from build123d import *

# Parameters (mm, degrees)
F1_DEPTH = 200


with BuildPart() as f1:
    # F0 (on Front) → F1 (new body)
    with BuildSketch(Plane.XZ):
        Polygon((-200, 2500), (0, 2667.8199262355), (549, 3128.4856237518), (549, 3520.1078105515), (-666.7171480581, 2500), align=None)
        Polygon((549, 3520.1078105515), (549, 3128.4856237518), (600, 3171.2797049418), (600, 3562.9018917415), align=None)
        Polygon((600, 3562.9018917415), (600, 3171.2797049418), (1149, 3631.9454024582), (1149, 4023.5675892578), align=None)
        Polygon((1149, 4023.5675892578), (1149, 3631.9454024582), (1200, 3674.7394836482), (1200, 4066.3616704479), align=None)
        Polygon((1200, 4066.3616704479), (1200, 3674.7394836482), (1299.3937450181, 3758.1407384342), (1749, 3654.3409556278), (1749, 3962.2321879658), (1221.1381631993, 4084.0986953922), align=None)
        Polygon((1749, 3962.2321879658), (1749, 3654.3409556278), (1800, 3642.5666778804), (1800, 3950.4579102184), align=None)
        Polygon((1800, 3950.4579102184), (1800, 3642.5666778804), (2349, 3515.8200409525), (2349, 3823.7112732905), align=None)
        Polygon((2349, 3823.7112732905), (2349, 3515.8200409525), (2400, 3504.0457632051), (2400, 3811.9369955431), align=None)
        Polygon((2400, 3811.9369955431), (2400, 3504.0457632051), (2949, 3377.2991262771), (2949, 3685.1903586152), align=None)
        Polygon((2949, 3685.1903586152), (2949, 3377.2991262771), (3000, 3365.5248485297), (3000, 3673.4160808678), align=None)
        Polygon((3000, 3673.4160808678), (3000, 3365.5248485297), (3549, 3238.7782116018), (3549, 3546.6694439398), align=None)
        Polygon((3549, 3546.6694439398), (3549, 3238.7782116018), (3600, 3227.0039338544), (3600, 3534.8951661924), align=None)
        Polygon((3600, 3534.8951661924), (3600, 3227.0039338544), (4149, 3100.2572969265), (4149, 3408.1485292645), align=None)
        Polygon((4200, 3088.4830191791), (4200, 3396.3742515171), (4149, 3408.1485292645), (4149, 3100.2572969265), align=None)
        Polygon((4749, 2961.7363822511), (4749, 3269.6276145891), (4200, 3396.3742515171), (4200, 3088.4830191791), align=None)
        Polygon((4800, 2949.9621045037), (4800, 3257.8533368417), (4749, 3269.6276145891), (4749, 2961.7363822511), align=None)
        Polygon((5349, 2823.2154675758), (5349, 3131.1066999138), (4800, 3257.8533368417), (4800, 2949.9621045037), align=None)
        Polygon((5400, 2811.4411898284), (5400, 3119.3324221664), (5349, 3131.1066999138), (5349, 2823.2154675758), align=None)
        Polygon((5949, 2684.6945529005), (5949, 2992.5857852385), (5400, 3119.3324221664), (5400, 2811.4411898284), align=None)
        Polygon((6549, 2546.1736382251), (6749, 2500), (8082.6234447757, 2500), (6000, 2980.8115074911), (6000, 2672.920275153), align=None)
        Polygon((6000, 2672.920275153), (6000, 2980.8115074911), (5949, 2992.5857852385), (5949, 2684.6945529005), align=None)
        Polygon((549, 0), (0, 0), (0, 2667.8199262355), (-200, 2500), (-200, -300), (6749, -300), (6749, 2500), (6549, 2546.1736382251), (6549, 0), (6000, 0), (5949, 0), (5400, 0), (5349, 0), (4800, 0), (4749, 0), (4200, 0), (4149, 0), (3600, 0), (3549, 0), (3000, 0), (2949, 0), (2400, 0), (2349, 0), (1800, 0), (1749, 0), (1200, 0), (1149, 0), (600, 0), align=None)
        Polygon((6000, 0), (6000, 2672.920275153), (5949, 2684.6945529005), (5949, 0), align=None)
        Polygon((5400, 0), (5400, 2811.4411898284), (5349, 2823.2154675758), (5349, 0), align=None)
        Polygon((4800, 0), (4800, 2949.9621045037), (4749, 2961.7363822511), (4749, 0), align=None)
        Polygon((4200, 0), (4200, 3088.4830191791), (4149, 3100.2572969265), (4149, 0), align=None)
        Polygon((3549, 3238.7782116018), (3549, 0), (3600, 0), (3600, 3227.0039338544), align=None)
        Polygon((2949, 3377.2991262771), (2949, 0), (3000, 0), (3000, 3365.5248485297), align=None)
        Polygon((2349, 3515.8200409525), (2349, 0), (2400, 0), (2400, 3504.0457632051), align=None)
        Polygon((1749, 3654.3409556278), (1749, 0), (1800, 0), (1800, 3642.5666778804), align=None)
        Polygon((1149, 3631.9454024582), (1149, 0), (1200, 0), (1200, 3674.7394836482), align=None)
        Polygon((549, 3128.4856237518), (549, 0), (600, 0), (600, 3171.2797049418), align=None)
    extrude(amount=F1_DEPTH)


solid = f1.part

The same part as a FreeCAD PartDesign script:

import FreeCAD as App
import Part
import Sketcher
Q = App.Units.Quantity

doc = App.newDocument("Part")
params = doc.addObject("Spreadsheet::Sheet", "Params")
for row, (alias, value) in enumerate([
    ("sketch1_width", "6949 mm"),
    ("sketch1_width2", "549 mm"),
    ("sketch1_height", "2800 mm"),
    ("pad1_length", "200 mm"),
], start=1):
    params.set(f"A{row}", alias)
    params.set(f"B{row}", "=" + value)
    params.setAlias(f"B{row}", alias)

body = doc.addObject("PartDesign::Body", "Body")

sketch1 = body.newObject("Sketcher::SketchObject", "Sketch")
sketch1.AttachmentSupport = (doc.getObject("XZ_Plane"), [""])
sketch1.MapMode = "FlatFace"
sketch1.addGeometry(Part.LineSegment(App.Vector(6749, 2500, 0), App.Vector(8083, 2500, 0)), False)
sketch1.addGeometry(Part.LineSegment(App.Vector(8083, 2500, 0), App.Vector(1221, 4084, 0)), False)
sketch1.addGeometry(Part.LineSegment(App.Vector(1221, 4084, 0), App.Vector(-667, 2500, 0)), False)
sketch1.addGeometry(Part.LineSegment(App.Vector(-667, 2500, 0), App.Vector(-200, 2500, 0)), False)
sketch1.addGeometry(Part.LineSegment(App.Vector(-200, 2500, 0), App.Vector(-200, -300, 0)), False)
sketch1.addGeometry(Part.LineSegment(App.Vector(-200, -300, 0), App.Vector(6749, -300, 0)), False)
sketch1.addGeometry(Part.LineSegment(App.Vector(6749, -300, 0), App.Vector(6749, 2500, 0)), False)
sketch1.addGeometry(Part.LineSegment(App.Vector(0, 2668, 0), App.Vector(549, 3128, 0)), False)
sketch1.addGeometry(Part.LineSegment(App.Vector(549, 3128, 0), App.Vector(549, 0, 0)), False)
sketch1.addGeometry(Part.LineSegment(App.Vector(549, 0, 0), App.Vector(0, 0, 0)), False)
sketch1.addGeometry(Part.LineSegment(App.Vector(0, 0, 0), App.Vector(0, 2668, 0)), False)
sketch1.addGeometry(Part.LineSegment(App.Vector(600, 3171, 0), App.Vector(1149, 3632, 0)), False)
sketch1.addGeometry(Part.LineSegment(App.Vector(1149, 3632, 0), App.Vector(1149, 0, 0)), False)
sketch1.addGeometry(Part.LineSegment(App.Vector(1149, 0, 0), App.Vector(600, 0, 0)), False)
sketch1.addGeometry(Part.LineSegment(App.Vector(600, 0, 0), App.Vector(600, 3171, 0)), False)
sketch1.addGeometry(Part.LineSegment(App.Vector(1200, 3675, 0), App.Vector(1299, 3758, 0)), False)
sketch1.addGeometry(Part.LineSegment(App.Vector(1299, 3758, 0), App.Vector(1749, 3654, 0)), False)
sketch1.addGeometry(Part.LineSegment(App.Vector(1749, 3654, 0), App.Vector(1749, 0, 0)), False)
sketch1.addGeometry(Part.LineSegment(App.Vector(1749, 0, 0), App.Vector(1200, 0, 0)), False)
sketch1.addGeometry(Part.LineSegment(App.Vector(1200, 0, 0), App.Vector(1200, 3675, 0)), False)
sketch1.addGeometry(Part.LineSegment(App.Vector(1800, 3643, 0), App.Vector(2349, 3516, 0)), False)
sketch1.addGeometry(Part.LineSegment(App.Vector(2349, 3516, 0), App.Vector(2349, 0, 0)), False)
sketch1.addGeometry(Part.LineSegment(App.Vector(2349, 0, 0), App.Vector(1800, 0, 0)), False)
sketch1.addGeometry(Part.LineSegment(App.Vector(1800, 0, 0), App.Vector(1800, 3643, 0)), False)
sketch1.addGeometry(Part.LineSegment(App.Vector(2400, 3504, 0), App.Vector(2949, 3377, 0)), False)
sketch1.addGeometry(Part.LineSegment(App.Vector(2949, 3377, 0), App.Vector(2949, 0, 0)), False)
sketch1.addGeometry(Part.LineSegment(App.Vector(2949, 0, 0), App.Vector(2400, 0, 0)), False)
sketch1.addGeometry(Part.LineSegment(App.Vector(2400, 0, 0), App.Vector(2400, 3504, 0)), False)
sketch1.addGeometry(Part.LineSegment(App.Vector(3000, 3366, 0), App.Vector(3549, 3239, 0)), False)
sketch1.addGeometry(Part.LineSegment(App.Vector(3549, 3239, 0), App.Vector(3549, 0, 0)), False)
sketch1.addGeometry(Part.LineSegment(App.Vector(3549, 0, 0), App.Vector(3000, 0, 0)), False)
sketch1.addGeometry(Part.LineSegment(App.Vector(3000, 0, 0), App.Vector(3000, 3366, 0)), False)
sketch1.addGeometry(Part.LineSegment(App.Vector(3600, 3227, 0), App.Vector(4149, 3100, 0)), False)
sketch1.addGeometry(Part.LineSegment(App.Vector(4149, 3100, 0), App.Vector(4149, 0, 0)), False)
sketch1.addGeometry(Part.LineSegment(App.Vector(4149, 0, 0), App.Vector(3600, 0, 0)), False)
sketch1.addGeometry(Part.LineSegment(App.Vector(3600, 0, 0), App.Vector(3600, 3227, 0)), False)
sketch1.addGeometry(Part.LineSegment(App.Vector(4200, 3088, 0), App.Vector(4749, 2962, 0)), False)
sketch1.addGeometry(Part.LineSegment(App.Vector(4749, 2962, 0), App.Vector(4749, 0, 0)), False)
sketch1.addGeometry(Part.LineSegment(App.Vector(4749, 0, 0), App.Vector(4200, 0, 0)), False)
sketch1.addGeometry(Part.LineSegment(App.Vector(4200, 0, 0), App.Vector(4200, 3088, 0)), False)
sketch1.addGeometry(Part.LineSegment(App.Vector(4800, 2950, 0), App.Vector(5349, 2823, 0)), False)
sketch1.addGeometry(Part.LineSegment(App.Vector(5349, 2823, 0), App.Vector(5349, 0, 0)), False)
sketch1.addGeometry(Part.LineSegment(App.Vector(5349, 0, 0), App.Vector(4800, 0, 0)), False)
sketch1.addGeometry(Part.LineSegment(App.Vector(4800, 0, 0), App.Vector(4800, 2950, 0)), False)
sketch1.addGeometry(Part.LineSegment(App.Vector(5400, 2811, 0), App.Vector(5949, 2685, 0)), False)
sketch1.addGeometry(Part.LineSegment(App.Vector(5949, 2685, 0), App.Vector(5949, 0, 0)), False)
sketch1.addGeometry(Part.LineSegment(App.Vector(5949, 0, 0), App.Vector(5400, 0, 0)), False)
sketch1.addGeometry(Part.LineSegment(App.Vector(5400, 0, 0), App.Vector(5400, 2811, 0)), False)
sketch1.addGeometry(Part.LineSegment(App.Vector(6000, 2673, 0), App.Vector(6549, 2546, 0)), False)
sketch1.addGeometry(Part.LineSegment(App.Vector(6549, 2546, 0), App.Vector(6549, 0, 0)), False)
sketch1.addGeometry(Part.LineSegment(App.Vector(6549, 0, 0), App.Vector(6000, 0, 0)), False)
sketch1.addGeometry(Part.LineSegment(App.Vector(6000, 0, 0), App.Vector(6000, 2673, 0)), False)
sketch1.addConstraint(Sketcher.Constraint("Coincident", 0, 2, 1, 1))
sketch1.addConstraint(Sketcher.Constraint("Coincident", 1, 2, 2, 1))
sketch1.addConstraint(Sketcher.Constraint("Coincident", 2, 2, 3, 1))
sketch1.addConstraint(Sketcher.Constraint("Coincident", 3, 2, 4, 1))
sketch1.addConstraint(Sketcher.Constraint("Coincident", 4, 2, 5, 1))
sketch1.addConstraint(Sketcher.Constraint("Coincident", 5, 2, 6, 1))
sketch1.addConstraint(Sketcher.Constraint("Coincident", 6, 2, 0, 1))
sketch1.addConstraint(Sketcher.Constraint("Coincident", 7, 2, 8, 1))
sketch1.addConstraint(Sketcher.Constraint("Coincident", 8, 2, 9, 1))
sketch1.addConstraint(Sketcher.Constraint("Coincident", 9, 2, 10, 1))
sketch1.addConstraint(Sketcher.Constraint("Coincident", 10, 2, 7, 1))
sketch1.addConstraint(Sketcher.Constraint("Coincident", 11, 2, 12, 1))
sketch1.addConstraint(Sketcher.Constraint("Coincident", 12, 2, 13, 1))
sketch1.addConstraint(Sketcher.Constraint("Coincident", 13, 2, 14, 1))
sketch1.addConstraint(Sketcher.Constraint("Coincident", 14, 2, 11, 1))
sketch1.addConstraint(Sketcher.Constraint("Coincident", 15, 2, 16, 1))
sketch1.addConstraint(Sketcher.Constraint("Coincident", 16, 2, 17, 1))
sketch1.addConstraint(Sketcher.Constraint("Coincident", 17, 2, 18, 1))
sketch1.addConstraint(Sketcher.Constraint("Coincident", 18, 2, 19, 1))
sketch1.addConstraint(Sketcher.Constraint("Coincident", 19, 2, 15, 1))
sketch1.addConstraint(Sketcher.Constraint("Coincident", 20, 2, 21, 1))
sketch1.addConstraint(Sketcher.Constraint("Coincident", 21, 2, 22, 1))
sketch1.addConstraint(Sketcher.Constraint("Coincident", 22, 2, 23, 1))
sketch1.addConstraint(Sketcher.Constraint("Coincident", 23, 2, 20, 1))
sketch1.addConstraint(Sketcher.Constraint("Coincident", 24, 2, 25, 1))
sketch1.addConstraint(Sketcher.Constraint("Coincident", 25, 2, 26, 1))
sketch1.addConstraint(Sketcher.Constraint("Coincident", 26, 2, 27, 1))
sketch1.addConstraint(Sketcher.Constraint("Coincident", 27, 2, 24, 1))
sketch1.addConstraint(Sketcher.Constraint("Coincident", 28, 2, 29, 1))
sketch1.addConstraint(Sketcher.Constraint("Coincident", 29, 2, 30, 1))
sketch1.addConstraint(Sketcher.Constraint("Coincident", 30, 2, 31, 1))
sketch1.addConstraint(Sketcher.Constraint("Coincident", 31, 2, 28, 1))
sketch1.addConstraint(Sketcher.Constraint("Coincident", 32, 2, 33, 1))
sketch1.addConstraint(Sketcher.Constraint("Coincident", 33, 2, 34, 1))
sketch1.addConstraint(Sketcher.Constraint("Coincident", 34, 2, 35, 1))
sketch1.addConstraint(Sketcher.Constraint("Coincident", 35, 2, 32, 1))
sketch1.addConstraint(Sketcher.Constraint("Coincident", 36, 2, 37, 1))
sketch1.addConstraint(Sketcher.Constraint("Coincident", 37, 2, 38, 1))
sketch1.addConstraint(Sketcher.Constraint("Coincident", 38, 2, 39, 1))
sketch1.addConstraint(Sketcher.Constraint("Coincident", 39, 2, 36, 1))
sketch1.addConstraint(Sketcher.Constraint("Coincident", 40, 2, 41, 1))
sketch1.addConstraint(Sketcher.Constraint("Coincident", 41, 2, 42, 1))
sketch1.addConstraint(Sketcher.Constraint("Coincident", 42, 2, 43, 1))
sketch1.addConstraint(Sketcher.Constraint("Coincident", 43, 2, 40, 1))
sketch1.addConstraint(Sketcher.Constraint("Coincident", 44, 2, 45, 1))
sketch1.addConstraint(Sketcher.Constraint("Coincident", 45, 2, 46, 1))
sketch1.addConstraint(Sketcher.Constraint("Coincident", 46, 2, 47, 1))
sketch1.addConstraint(Sketcher.Constraint("Coincident", 47, 2, 44, 1))
sketch1.addConstraint(Sketcher.Constraint("Coincident", 48, 2, 49, 1))
sketch1.addConstraint(Sketcher.Constraint("Coincident", 49, 2, 50, 1))
sketch1.addConstraint(Sketcher.Constraint("Coincident", 50, 2, 51, 1))
sketch1.addConstraint(Sketcher.Constraint("Coincident", 51, 2, 48, 1))
sketch1.addConstraint(Sketcher.Constraint("Horizontal", 0))
sketch1.addConstraint(Sketcher.Constraint("Horizontal", 3))
sketch1.addConstraint(Sketcher.Constraint("Vertical", 4))
sketch1.addConstraint(Sketcher.Constraint("Horizontal", 5))
sketch1.addConstraint(Sketcher.Constraint("Vertical", 6))
sketch1.addConstraint(Sketcher.Constraint("Vertical", 8))
sketch1.addConstraint(Sketcher.Constraint("Horizontal", 9))
sketch1.addConstraint(Sketcher.Constraint("Vertical", 10))
sketch1.addConstraint(Sketcher.Constraint("Vertical", 12))
sketch1.addConstraint(Sketcher.Constraint("Horizontal", 13))
sketch1.addConstraint(Sketcher.Constraint("Vertical", 14))
sketch1.addConstraint(Sketcher.Constraint("Vertical", 17))
sketch1.addConstraint(Sketcher.Constraint("Horizontal", 18))
sketch1.addConstraint(Sketcher.Constraint("Vertical", 19))
sketch1.addConstraint(Sketcher.Constraint("Vertical", 21))
sketch1.addConstraint(Sketcher.Constraint("Horizontal", 22))
sketch1.addConstraint(Sketcher.Constraint("Vertical", 23))
sketch1.addConstraint(Sketcher.Constraint("Vertical", 25))
sketch1.addConstraint(Sketcher.Constraint("Horizontal", 26))
sketch1.addConstraint(Sketcher.Constraint("Vertical", 27))
sketch1.addConstraint(Sketcher.Constraint("Vertical", 29))
sketch1.addConstraint(Sketcher.Constraint("Horizontal", 30))
sketch1.addConstraint(Sketcher.Constraint("Vertical", 31))
sketch1.addConstraint(Sketcher.Constraint("Vertical", 33))
sketch1.addConstraint(Sketcher.Constraint("Horizontal", 34))
sketch1.addConstraint(Sketcher.Constraint("Vertical", 35))
sketch1.addConstraint(Sketcher.Constraint("Vertical", 37))
sketch1.addConstraint(Sketcher.Constraint("Horizontal", 38))
sketch1.addConstraint(Sketcher.Constraint("Vertical", 39))
sketch1.addConstraint(Sketcher.Constraint("Vertical", 41))
sketch1.addConstraint(Sketcher.Constraint("Horizontal", 42))
sketch1.addConstraint(Sketcher.Constraint("Vertical", 43))
sketch1.addConstraint(Sketcher.Constraint("Vertical", 45))
sketch1.addConstraint(Sketcher.Constraint("Horizontal", 46))
sketch1.addConstraint(Sketcher.Constraint("Vertical", 47))
sketch1.addConstraint(Sketcher.Constraint("Vertical", 49))
sketch1.addConstraint(Sketcher.Constraint("Horizontal", 50))
sketch1.addConstraint(Sketcher.Constraint("Vertical", 51))
sketch1.addConstraint(Sketcher.Constraint("Coincident", 9, 2, -1, 1))
sketch1.addConstraint(Sketcher.Constraint("PointOnObject", 12, 2, -1))
sketch1.addConstraint(Sketcher.Constraint("PointOnObject", 17, 2, -1))
sketch1.addConstraint(Sketcher.Constraint("PointOnObject", 21, 2, -1))
sketch1.addConstraint(Sketcher.Constraint("PointOnObject", 25, 2, -1))
sketch1.addConstraint(Sketcher.Constraint("PointOnObject", 29, 2, -1))
sketch1.addConstraint(Sketcher.Constraint("PointOnObject", 33, 2, -1))
sketch1.addConstraint(Sketcher.Constraint("PointOnObject", 37, 2, -1))
sketch1.addConstraint(Sketcher.Constraint("PointOnObject", 41, 2, -1))
sketch1.addConstraint(Sketcher.Constraint("PointOnObject", 45, 2, -1))
sketch1.addConstraint(Sketcher.Constraint("PointOnObject", 49, 2, -1))
sketch1.addConstraint(Sketcher.Constraint("Parallel", 2, 7))
sketch1.addConstraint(Sketcher.Constraint("Parallel", 7, 11))
sketch1.addConstraint(Sketcher.Constraint("Parallel", 11, 15))
sketch1.addConstraint(Sketcher.Constraint("Parallel", 1, 16))
sketch1.addConstraint(Sketcher.Constraint("Parallel", 16, 20))
sketch1.addConstraint(Sketcher.Constraint("Parallel", 20, 24))
sketch1.addConstraint(Sketcher.Constraint("Parallel", 24, 28))
sketch1.addConstraint(Sketcher.Constraint("Parallel", 28, 32))
sketch1.addConstraint(Sketcher.Constraint("Parallel", 32, 36))
sketch1.addConstraint(Sketcher.Constraint("Parallel", 36, 40))
sketch1.addConstraint(Sketcher.Constraint("Parallel", 40, 44))
sketch1.addConstraint(Sketcher.Constraint("Parallel", 44, 48))
sketch1.addConstraint(Sketcher.Constraint("Horizontal", 0, 2, 2, 2))
sketch1.addConstraint(Sketcher.Constraint("Equal", 9, 13))
sketch1.addConstraint(Sketcher.Constraint("Equal", 13, 18))
sketch1.addConstraint(Sketcher.Constraint("Equal", 18, 22))
sketch1.addConstraint(Sketcher.Constraint("Equal", 22, 26))
sketch1.addConstraint(Sketcher.Constraint("Equal", 26, 30))
sketch1.addConstraint(Sketcher.Constraint("Equal", 30, 34))
sketch1.addConstraint(Sketcher.Constraint("Equal", 34, 38))
sketch1.addConstraint(Sketcher.Constraint("Equal", 38, 42))
sketch1.addConstraint(Sketcher.Constraint("Equal", 42, 46))
sketch1.addConstraint(Sketcher.Constraint("Equal", 46, 50))
sketch1.addConstraint(Sketcher.Constraint("DistanceX", 5, 1, 5, 2, 6949.0))
sketch1.addConstraint(Sketcher.Constraint("DistanceX", 9, 2, 9, 1, 549.0))
sketch1.addConstraint(Sketcher.Constraint("DistanceY", 4, 2, 4, 1, 2800.0))
sketch1.addConstraint(Sketcher.Constraint("Angle", 1, Q("167 deg")))
sketch1.addConstraint(Sketcher.Constraint("Angle", 2, Q("-140 deg")))
sketch1.addConstraint(Sketcher.Constraint("DistanceY", -1, 1, 0, 2, 2500.0))
sketch1.addConstraint(Sketcher.Constraint("DistanceX", 3, 2, -1, 1, 200.0))
sketch1.addConstraint(Sketcher.Constraint("DistanceX", -1, 1, 11, 2, 1149.0))
sketch1.addConstraint(Sketcher.Constraint("DistanceX", -1, 1, 16, 2, 1749.0))
sketch1.addConstraint(Sketcher.Constraint("DistanceX", -1, 1, 20, 2, 2349.0))
sketch1.addConstraint(Sketcher.Constraint("DistanceX", -1, 1, 24, 2, 2949.0))
sketch1.addConstraint(Sketcher.Constraint("DistanceX", -1, 1, 28, 2, 3549.0))
sketch1.addConstraint(Sketcher.Constraint("DistanceX", -1, 1, 32, 2, 4149.0))
sketch1.addConstraint(Sketcher.Constraint("DistanceX", -1, 1, 36, 2, 4749.0))
sketch1.addConstraint(Sketcher.Constraint("DistanceX", -1, 1, 40, 2, 5349.0))
sketch1.addConstraint(Sketcher.Constraint("DistanceX", -1, 1, 44, 2, 5949.0))
sketch1.addConstraint(Sketcher.Constraint("DistanceX", -1, 1, 48, 2, 6549.0))
sketch1.addConstraint(Sketcher.Constraint("DistanceX", 3, 1, 3, 2, 466.717148))
sketch1.addConstraint(Sketcher.Constraint("DistanceY", 21, 2, 21, 1, 3515.820041))
sketch1.addConstraint(Sketcher.Constraint("DistanceY", 29, 2, 29, 1, 3238.778212))
sketch1.addConstraint(Sketcher.Constraint("DistanceY", 39, 1, 39, 2, 3088.483019))
sketch1.addConstraint(Sketcher.Constraint("DistanceY", 47, 1, 47, 2, 2811.44119))
sketch1.addConstraint(Sketcher.Constraint("DistanceY", 49, 2, 49, 1, 2546.173638))
sketch1.addConstraint(Sketcher.Constraint("Distance", 1, 7041.97053))
sketch1.addConstraint(Sketcher.Constraint("Distance", 15, 129.749319))
sketch1.addConstraint(Sketcher.Constraint("DistanceY", 8, 2, 8, 1, 3128.485624))
sketch1.addConstraint(Sketcher.Constraint("DistanceY", 12, 2, 12, 1, 3631.945402))
sketch1.addConstraint(Sketcher.Constraint("DistanceY", 17, 2, 17, 1, 3654.340956))
sketch1.addConstraint(Sketcher.Constraint("DistanceY", 25, 2, 25, 1, 3377.299126))
sketch1.addConstraint(Sketcher.Constraint("DistanceY", 33, 2, 33, 1, 3100.257297))
sketch1.addConstraint(Sketcher.Constraint("DistanceY", 41, 2, 41, 1, 2823.215468))
sketch1.setExpression("Constraints[124]", "Params.sketch1_width")
sketch1.setExpression("Constraints[125]", "Params.sketch1_width2")
sketch1.setExpression("Constraints[126]", "Params.sketch1_height")
pad1 = body.newObject("PartDesign::Pad", "Pad")
pad1.Profile = sketch1
pad1.setExpression("Length", "Params.pad1_length")

doc.recompute()
